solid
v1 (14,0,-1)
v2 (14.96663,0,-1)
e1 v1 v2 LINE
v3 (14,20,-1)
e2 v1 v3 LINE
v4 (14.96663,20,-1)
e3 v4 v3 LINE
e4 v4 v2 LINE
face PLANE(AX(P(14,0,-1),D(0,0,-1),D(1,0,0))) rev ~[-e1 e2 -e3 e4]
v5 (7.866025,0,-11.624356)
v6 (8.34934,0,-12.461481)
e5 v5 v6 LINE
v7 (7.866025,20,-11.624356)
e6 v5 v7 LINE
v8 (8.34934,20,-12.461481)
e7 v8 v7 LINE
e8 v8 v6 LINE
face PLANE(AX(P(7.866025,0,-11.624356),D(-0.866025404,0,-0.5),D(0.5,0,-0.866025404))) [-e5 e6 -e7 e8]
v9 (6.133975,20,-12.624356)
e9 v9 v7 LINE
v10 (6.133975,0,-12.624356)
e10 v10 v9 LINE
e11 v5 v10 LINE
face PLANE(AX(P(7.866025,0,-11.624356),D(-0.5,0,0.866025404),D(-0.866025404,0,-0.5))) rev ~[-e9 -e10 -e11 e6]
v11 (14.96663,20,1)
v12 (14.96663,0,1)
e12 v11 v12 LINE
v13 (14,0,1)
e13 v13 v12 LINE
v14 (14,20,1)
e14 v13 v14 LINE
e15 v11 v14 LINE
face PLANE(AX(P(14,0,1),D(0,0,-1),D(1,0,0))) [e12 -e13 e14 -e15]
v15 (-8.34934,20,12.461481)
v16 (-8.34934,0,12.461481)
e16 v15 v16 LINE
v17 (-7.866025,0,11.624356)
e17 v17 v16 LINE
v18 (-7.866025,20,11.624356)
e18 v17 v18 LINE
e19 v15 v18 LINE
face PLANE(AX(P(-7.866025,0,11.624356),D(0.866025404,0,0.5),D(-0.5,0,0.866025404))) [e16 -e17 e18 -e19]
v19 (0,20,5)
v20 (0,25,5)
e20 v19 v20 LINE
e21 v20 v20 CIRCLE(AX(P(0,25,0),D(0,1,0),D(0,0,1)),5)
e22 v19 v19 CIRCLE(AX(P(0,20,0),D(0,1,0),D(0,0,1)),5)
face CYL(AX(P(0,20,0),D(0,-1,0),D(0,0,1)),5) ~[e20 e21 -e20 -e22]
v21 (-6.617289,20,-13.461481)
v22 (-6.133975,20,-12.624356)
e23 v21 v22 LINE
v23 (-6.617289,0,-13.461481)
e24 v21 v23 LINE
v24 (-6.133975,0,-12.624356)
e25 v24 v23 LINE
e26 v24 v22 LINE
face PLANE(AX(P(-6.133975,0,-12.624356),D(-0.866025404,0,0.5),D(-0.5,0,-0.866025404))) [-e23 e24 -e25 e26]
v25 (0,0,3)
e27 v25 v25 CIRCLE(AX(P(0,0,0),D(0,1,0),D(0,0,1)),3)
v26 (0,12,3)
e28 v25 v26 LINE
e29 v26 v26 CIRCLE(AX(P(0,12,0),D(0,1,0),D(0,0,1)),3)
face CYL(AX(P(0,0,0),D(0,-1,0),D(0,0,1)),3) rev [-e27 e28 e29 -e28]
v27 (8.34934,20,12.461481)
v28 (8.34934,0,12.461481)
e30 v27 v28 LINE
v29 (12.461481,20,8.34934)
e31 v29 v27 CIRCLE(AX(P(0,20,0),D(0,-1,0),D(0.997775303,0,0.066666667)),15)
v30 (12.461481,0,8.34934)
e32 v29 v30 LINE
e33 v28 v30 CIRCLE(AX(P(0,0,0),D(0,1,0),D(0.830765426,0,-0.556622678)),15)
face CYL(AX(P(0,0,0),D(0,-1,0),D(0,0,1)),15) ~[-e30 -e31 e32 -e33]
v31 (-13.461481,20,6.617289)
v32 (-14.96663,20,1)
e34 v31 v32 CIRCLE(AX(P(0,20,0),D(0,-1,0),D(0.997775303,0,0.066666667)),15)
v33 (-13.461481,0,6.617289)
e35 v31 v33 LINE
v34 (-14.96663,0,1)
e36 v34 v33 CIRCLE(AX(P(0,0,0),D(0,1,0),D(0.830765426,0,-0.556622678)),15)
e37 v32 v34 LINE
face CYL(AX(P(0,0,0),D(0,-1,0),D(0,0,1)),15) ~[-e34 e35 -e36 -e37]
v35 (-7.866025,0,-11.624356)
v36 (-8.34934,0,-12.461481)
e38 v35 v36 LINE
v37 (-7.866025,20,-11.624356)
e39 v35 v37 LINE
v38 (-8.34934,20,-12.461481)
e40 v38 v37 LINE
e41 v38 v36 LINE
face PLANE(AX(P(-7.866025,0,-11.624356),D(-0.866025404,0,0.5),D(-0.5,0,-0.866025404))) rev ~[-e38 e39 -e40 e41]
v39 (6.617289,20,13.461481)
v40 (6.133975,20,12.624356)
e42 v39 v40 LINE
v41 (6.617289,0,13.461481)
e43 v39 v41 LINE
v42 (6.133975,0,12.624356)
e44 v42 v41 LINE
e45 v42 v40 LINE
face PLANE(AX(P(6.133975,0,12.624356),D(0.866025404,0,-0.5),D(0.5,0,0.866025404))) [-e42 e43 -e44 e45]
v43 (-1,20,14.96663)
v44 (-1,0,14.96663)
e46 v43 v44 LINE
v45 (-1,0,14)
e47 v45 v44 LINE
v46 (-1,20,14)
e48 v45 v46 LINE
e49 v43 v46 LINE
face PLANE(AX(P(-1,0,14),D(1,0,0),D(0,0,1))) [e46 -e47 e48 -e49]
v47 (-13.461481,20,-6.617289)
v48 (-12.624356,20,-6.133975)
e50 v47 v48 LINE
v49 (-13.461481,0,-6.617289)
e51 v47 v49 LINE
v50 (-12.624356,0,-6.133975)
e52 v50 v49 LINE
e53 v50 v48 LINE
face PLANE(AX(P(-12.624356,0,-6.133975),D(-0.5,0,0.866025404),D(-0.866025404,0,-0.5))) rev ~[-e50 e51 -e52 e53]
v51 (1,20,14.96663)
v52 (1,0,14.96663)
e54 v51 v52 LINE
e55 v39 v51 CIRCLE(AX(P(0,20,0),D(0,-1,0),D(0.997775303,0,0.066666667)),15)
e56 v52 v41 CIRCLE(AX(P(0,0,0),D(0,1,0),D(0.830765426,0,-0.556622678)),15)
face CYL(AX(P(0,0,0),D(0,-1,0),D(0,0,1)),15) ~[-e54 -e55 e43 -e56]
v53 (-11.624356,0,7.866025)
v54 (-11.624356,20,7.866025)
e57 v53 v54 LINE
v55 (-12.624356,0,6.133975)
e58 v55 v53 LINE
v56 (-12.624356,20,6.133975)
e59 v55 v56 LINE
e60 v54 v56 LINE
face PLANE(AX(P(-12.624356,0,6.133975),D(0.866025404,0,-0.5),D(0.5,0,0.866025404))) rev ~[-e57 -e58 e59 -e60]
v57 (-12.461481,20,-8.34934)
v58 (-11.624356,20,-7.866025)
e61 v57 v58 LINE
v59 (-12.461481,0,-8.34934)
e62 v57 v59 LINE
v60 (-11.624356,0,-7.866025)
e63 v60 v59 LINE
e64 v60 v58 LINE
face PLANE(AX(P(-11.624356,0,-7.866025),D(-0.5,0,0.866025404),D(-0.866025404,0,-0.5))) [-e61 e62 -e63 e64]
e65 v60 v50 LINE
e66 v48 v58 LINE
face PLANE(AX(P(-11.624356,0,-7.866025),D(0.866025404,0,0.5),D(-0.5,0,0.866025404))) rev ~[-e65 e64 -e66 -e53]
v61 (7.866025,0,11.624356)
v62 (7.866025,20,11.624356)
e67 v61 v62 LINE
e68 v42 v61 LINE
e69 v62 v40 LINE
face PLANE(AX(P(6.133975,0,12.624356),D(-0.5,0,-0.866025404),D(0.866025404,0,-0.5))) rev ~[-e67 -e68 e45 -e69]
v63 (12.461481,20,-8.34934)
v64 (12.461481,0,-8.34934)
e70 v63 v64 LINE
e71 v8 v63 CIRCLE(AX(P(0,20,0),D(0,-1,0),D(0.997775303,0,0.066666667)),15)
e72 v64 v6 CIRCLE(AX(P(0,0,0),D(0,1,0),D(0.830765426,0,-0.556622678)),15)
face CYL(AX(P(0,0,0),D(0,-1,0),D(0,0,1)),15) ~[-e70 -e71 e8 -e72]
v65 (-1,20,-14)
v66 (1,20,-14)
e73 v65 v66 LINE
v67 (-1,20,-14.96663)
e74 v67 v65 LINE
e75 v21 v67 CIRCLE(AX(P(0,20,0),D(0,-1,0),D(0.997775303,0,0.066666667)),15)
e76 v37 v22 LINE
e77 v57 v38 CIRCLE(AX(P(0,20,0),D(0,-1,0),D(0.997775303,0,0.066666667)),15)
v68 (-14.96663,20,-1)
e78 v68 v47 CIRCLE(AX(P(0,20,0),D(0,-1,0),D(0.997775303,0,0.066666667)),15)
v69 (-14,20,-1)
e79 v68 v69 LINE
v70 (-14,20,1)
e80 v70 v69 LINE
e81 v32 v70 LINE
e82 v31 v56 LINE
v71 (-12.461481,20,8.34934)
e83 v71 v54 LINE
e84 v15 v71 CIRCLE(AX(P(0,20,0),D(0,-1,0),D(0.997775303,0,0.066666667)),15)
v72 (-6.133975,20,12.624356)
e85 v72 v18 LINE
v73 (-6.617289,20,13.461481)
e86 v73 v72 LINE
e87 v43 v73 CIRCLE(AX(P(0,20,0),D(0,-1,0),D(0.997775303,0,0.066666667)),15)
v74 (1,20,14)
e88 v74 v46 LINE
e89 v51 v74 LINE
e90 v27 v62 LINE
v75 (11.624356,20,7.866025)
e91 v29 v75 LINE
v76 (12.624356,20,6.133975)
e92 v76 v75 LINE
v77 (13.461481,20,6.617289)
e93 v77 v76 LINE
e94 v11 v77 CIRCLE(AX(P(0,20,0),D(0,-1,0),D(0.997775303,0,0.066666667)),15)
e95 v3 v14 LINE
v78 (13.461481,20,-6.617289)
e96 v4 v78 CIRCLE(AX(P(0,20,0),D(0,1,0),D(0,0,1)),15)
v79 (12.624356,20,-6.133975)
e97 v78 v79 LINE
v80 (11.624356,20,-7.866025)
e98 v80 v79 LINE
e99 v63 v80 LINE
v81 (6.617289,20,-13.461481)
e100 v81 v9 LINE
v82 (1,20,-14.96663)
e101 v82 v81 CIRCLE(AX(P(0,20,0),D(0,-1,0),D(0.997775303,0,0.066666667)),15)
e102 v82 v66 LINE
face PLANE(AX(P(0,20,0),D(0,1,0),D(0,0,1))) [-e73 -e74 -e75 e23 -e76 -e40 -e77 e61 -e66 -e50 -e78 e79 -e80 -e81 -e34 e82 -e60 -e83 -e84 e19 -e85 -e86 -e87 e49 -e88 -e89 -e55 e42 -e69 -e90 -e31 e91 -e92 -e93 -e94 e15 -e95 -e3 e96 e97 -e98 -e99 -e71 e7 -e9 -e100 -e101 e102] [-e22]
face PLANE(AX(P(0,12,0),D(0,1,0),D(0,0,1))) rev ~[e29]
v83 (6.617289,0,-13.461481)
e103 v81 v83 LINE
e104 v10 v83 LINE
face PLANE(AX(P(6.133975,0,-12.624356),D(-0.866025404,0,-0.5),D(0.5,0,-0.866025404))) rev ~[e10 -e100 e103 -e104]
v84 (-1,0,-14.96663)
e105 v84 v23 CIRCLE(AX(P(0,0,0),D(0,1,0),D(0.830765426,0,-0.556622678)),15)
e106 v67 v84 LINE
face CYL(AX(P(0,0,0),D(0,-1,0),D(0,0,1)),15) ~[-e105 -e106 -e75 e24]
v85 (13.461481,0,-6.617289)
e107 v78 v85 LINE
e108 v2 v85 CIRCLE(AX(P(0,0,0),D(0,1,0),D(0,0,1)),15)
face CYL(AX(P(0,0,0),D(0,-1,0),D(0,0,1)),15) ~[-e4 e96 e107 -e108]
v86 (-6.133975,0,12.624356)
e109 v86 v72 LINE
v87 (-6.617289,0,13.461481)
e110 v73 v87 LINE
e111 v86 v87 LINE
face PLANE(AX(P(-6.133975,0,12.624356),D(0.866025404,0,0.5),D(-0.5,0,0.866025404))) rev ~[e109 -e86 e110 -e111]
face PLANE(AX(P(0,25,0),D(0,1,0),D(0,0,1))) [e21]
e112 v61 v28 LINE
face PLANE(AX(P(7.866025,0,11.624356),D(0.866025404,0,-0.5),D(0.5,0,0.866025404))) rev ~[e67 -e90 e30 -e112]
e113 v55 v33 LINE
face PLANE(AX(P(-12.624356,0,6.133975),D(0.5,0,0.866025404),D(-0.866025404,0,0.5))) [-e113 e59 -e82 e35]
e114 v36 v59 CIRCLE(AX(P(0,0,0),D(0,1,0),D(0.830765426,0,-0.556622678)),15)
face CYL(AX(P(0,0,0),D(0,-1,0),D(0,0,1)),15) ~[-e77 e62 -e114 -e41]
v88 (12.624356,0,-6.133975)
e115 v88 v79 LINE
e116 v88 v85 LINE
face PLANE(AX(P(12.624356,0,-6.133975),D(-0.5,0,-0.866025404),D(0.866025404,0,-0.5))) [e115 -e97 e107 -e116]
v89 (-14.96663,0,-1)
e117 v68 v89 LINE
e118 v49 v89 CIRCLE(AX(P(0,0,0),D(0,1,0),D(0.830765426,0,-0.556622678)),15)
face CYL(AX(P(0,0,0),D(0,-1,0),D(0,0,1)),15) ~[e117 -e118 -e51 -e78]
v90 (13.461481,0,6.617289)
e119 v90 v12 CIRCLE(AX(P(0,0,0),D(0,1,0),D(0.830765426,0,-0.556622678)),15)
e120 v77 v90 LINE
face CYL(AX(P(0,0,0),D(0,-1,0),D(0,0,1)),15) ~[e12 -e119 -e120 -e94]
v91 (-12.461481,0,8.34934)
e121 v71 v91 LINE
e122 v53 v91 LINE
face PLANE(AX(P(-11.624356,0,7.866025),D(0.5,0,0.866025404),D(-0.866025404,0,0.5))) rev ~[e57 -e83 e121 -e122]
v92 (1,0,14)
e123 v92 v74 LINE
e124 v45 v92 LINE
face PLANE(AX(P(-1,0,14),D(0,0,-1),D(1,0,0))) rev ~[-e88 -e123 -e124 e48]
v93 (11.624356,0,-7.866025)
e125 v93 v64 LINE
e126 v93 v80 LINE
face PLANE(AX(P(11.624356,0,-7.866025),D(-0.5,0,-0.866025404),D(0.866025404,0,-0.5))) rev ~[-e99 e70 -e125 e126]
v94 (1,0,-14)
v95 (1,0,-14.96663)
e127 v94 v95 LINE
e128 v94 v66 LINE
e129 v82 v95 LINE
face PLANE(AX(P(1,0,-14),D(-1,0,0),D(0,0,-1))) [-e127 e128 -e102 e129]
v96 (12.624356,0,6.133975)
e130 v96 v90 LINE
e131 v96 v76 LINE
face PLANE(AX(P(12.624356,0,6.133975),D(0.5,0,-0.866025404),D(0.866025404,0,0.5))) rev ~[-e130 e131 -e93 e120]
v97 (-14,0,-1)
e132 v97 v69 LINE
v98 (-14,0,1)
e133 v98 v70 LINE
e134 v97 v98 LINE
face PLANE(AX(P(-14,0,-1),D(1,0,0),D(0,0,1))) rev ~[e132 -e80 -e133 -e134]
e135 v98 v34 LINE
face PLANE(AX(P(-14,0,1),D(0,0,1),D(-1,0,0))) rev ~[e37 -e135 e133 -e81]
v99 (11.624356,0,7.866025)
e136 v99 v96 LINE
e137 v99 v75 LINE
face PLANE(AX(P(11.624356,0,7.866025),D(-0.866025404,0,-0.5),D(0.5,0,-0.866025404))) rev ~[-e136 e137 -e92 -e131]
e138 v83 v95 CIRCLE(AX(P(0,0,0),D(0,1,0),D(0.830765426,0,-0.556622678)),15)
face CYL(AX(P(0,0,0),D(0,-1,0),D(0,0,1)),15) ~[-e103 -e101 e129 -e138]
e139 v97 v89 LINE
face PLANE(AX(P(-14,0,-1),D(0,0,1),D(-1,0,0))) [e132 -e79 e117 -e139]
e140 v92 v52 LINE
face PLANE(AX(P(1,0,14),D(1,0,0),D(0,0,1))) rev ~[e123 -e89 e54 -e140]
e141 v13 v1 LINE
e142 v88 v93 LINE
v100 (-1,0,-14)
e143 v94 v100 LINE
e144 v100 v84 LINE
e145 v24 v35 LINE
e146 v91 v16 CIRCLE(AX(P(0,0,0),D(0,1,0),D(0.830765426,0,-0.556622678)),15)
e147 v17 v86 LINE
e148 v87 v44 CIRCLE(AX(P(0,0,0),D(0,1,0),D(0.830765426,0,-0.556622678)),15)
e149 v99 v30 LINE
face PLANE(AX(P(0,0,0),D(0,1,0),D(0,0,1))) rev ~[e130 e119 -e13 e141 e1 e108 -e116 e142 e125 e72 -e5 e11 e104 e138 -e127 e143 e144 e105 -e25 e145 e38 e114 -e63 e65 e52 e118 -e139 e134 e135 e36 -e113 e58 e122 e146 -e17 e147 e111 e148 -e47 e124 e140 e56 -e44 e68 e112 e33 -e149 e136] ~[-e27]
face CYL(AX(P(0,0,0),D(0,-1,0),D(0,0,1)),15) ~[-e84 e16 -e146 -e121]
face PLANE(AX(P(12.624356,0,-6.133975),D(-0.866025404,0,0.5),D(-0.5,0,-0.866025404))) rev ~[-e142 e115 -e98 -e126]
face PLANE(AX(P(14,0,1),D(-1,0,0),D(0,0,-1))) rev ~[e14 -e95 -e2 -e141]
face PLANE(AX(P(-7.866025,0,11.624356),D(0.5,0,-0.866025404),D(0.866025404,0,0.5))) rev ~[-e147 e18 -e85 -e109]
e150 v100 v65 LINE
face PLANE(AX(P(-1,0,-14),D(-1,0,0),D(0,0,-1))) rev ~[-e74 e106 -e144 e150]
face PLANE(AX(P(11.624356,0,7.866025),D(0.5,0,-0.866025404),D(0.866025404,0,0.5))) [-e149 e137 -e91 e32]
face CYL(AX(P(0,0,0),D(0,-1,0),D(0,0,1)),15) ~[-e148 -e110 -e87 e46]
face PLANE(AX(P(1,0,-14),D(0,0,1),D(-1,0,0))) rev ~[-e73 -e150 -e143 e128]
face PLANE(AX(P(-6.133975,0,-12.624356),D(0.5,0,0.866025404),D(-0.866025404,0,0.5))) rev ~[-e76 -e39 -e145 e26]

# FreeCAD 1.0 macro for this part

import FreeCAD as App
import Part
import Sketcher
Q = App.Units.Quantity

doc = App.newDocument("Part")
body = doc.addObject("PartDesign::Body", "Body")

sketch1 = body.newObject("Sketcher::SketchObject", "Sketch")
sketch1.AttachmentSupport = (doc.getObject("XZ_Plane"), [""])
sketch1.MapMode = "FlatFace"
sketch1.addGeometry(Part.Circle(App.Vector(0, 0, 0), App.Vector(0, 0, 1), 15), False)
sketch1.addConstraint([
    Sketcher.Constraint("Coincident", 0, 3, -1, 1),
    Sketcher.Constraint("Diameter", 0, Q("30 mm")),
])
pad1 = body.newObject("PartDesign::Pad", "Pad")
pad1.Profile = sketch1
pad1.Length = 20
pad1.Reversed = True

sketch2 = body.newObject("Sketcher::SketchObject", "Sketch001")
sketch2.AttachmentSupport = (doc.getObject("XZ_Plane"), [""])
sketch2.MapMode = "FlatFace"
sketch2.AttachmentOffset = App.Placement(App.Vector(0, 0, -20), App.Rotation())
sketch2.addGeometry(Part.Circle(App.Vector(0, 0, 0), App.Vector(0, 0, 1), 5), False)
sketch2.addConstraint([
    Sketcher.Constraint("Coincident", 0, 3, -1, 1),
    Sketcher.Constraint("Diameter", 0, Q("10 mm")),
])
pad2 = body.newObject("PartDesign::Pad", "Pad001")
pad2.Profile = sketch2
pad2.Length = 5
pad2.Reversed = True

sketch3 = body.newObject("Sketcher::SketchObject", "Sketch002")
sketch3.AttachmentSupport = (doc.getObject("XZ_Plane"), [""])
sketch3.MapMode = "FlatFace"
sketch3.addGeometry([
    Part.LineSegment(App.Vector(14, -1, 0), App.Vector(14, 1, 0)),
    Part.LineSegment(App.Vector(14, 1, 0), App.Vector(16, 1, 0)),
    Part.LineSegment(App.Vector(16, 1, 0), App.Vector(16, -1, 0)),
    Part.LineSegment(App.Vector(16, -1, 0), App.Vector(14, -1, 0)),
], False)
sketch3.addConstraint([
    Sketcher.Constraint("Coincident", 0, 2, 1, 1),
    Sketcher.Constraint("Coincident", 1, 2, 2, 1),
    Sketcher.Constraint("Coincident", 2, 2, 3, 1),
    Sketcher.Constraint("Coincident", 3, 2, 0, 1),
    Sketcher.Constraint("Vertical", 0),
    Sketcher.Constraint("Horizontal", 1),
    Sketcher.Constraint("Vertical", 2),
    Sketcher.Constraint("Horizontal", 3),
    Sketcher.Constraint("Equal", 3, 0),
    Sketcher.Constraint("DistanceX", 1, 1, 1, 2, Q("2 mm")),
    Sketcher.Constraint("DistanceX", -1, 1, 0, 2, Q("14 mm")),
    Sketcher.Constraint("DistanceY", -1, 1, 0, 2, Q("1 mm")),
])
pocket1 = body.newObject("PartDesign::Pocket", "Pocket")
pocket1.Profile = sketch3
pocket1.Type = "ThroughAll"
doc.recompute()

polarpattern = body.newObject("PartDesign::PolarPattern", "PolarPattern")
polarpattern.Originals = [pocket1]
polarpattern.Axis = (doc.getObject("Y_Axis"), [""])
polarpattern.Angle = 360
polarpattern.Occurrences = 12
body.Tip = polarpattern

sketch4 = body.newObject("Sketcher::SketchObject", "Sketch003")
sketch4.AttachmentSupport = (doc.getObject("XZ_Plane"), [""])
sketch4.MapMode = "FlatFace"
sketch4.addGeometry(Part.Circle(App.Vector(0, 0, 0), App.Vector(0, 0, 1), 3), False)
sketch4.addConstraint([
    Sketcher.Constraint("Coincident", 0, 3, -1, 1),
    Sketcher.Constraint("Diameter", 0, Q("6 mm")),
])
pocket2 = body.newObject("PartDesign::Pocket", "Pocket001")
pocket2.Profile = sketch4
pocket2.Length = 12

doc.recompute()
